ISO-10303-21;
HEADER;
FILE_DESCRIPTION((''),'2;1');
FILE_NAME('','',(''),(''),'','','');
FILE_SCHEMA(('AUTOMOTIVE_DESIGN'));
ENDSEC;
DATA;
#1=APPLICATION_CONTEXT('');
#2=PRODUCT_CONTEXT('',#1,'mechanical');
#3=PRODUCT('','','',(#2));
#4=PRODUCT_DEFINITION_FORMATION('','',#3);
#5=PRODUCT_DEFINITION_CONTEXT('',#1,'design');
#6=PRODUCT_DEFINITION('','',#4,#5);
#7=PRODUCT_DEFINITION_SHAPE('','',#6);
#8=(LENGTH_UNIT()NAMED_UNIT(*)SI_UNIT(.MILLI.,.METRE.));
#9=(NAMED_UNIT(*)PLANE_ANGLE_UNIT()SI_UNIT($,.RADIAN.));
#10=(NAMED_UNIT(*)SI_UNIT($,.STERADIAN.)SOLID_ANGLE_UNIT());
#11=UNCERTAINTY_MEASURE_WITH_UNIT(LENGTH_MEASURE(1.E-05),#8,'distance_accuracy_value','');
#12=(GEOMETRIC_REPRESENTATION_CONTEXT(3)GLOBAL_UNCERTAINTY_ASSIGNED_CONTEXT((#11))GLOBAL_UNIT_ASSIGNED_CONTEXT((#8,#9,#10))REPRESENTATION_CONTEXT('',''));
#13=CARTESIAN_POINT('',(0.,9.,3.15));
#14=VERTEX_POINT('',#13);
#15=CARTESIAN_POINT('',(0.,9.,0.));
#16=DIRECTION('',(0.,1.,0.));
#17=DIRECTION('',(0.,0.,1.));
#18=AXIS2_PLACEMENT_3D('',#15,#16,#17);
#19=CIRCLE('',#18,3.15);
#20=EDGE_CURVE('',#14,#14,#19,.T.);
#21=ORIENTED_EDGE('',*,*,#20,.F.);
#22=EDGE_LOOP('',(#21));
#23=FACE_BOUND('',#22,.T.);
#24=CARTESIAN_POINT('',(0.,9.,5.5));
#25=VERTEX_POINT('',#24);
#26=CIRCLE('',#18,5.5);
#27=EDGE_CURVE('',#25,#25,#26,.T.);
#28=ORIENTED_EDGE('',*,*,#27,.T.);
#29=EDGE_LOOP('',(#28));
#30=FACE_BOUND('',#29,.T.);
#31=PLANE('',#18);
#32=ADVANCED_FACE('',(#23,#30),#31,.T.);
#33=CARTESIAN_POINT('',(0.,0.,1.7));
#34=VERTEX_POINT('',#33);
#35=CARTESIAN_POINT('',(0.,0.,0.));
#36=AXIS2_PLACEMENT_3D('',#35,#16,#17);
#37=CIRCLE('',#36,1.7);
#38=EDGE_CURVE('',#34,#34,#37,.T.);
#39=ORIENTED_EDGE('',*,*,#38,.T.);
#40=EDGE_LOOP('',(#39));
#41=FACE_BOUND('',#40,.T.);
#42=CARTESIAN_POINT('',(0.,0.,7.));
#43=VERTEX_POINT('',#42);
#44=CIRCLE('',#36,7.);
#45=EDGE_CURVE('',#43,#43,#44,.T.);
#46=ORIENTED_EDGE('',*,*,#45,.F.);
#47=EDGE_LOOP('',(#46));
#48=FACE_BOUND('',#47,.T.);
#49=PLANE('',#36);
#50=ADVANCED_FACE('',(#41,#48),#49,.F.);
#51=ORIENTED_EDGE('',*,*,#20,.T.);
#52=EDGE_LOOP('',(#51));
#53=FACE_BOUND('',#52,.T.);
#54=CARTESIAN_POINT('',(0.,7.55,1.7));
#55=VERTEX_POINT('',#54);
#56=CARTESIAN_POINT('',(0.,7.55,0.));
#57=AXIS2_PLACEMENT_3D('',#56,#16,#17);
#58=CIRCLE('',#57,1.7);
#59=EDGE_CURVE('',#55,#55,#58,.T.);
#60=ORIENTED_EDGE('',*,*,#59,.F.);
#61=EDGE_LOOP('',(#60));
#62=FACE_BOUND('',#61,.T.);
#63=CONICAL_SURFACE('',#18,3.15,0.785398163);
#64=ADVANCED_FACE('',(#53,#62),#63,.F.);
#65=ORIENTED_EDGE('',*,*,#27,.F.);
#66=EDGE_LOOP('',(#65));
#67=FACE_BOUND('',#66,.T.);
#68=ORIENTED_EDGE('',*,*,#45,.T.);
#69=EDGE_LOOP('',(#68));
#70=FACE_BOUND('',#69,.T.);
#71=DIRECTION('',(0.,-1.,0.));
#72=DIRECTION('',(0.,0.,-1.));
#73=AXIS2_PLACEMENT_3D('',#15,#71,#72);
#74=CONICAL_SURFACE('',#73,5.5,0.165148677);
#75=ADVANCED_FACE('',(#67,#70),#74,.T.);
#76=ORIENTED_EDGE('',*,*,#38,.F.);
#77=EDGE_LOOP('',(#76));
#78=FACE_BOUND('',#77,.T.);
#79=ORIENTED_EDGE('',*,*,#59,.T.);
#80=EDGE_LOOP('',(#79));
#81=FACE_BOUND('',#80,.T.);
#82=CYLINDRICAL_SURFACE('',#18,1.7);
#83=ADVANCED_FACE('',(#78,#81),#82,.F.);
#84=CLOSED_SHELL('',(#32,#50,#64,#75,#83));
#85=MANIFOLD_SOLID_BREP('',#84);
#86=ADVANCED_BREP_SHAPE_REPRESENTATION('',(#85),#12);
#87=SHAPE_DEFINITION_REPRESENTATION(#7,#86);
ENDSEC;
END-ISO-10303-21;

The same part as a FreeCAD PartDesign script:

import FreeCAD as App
import Part
import Sketcher

V = App.Vector
Q = App.Units.Quantity

doc = App.newDocument("Part")
params = doc.addObject("Spreadsheet::Sheet", "Params")
for row, (alias, value) in enumerate([
    ("sketch1_diameter", "11 mm"),
    ("sketch2_diameter", "14 mm"),
    ("sketch3_diameter", "3.4 mm"),
    ("hole_diameter", "3.4 mm"),
    ("hole_csink_diameter", "6.3 mm"),
], start=1):
    params.set(f"A{row}", alias)
    params.set(f"B{row}", "=" + value)
    params.setAlias(f"B{row}", alias)

body = doc.addObject("PartDesign::Body", "Body")

sketch1 = doc.addObject("Sketcher::SketchObject", "Sketch")
body.addObject(sketch1)
sketch1.AttachmentSupport = (doc.XZ_Plane, [""])
sketch1.MapMode = "FlatFace"
sketch1.AttachmentOffset = App.Placement(V(0, 0, -9), App.Rotation())
sketch1.addGeometry(Part.Circle(V(0, 0, 0), V(0, 0, 1), 5.5), False)
sketch1.addConstraint(Sketcher.Constraint("Coincident", 0, 3, -1, 1))
sketch1.addConstraint(Sketcher.Constraint("Diameter", 0, Q("11 mm")))
sketch1.setExpression("Constraints[1]", "Params.sketch1_diameter")

sketch2 = doc.addObject("Sketcher::SketchObject", "Sketch001")
body.addObject(sketch2)
sketch2.AttachmentSupport = (doc.XZ_Plane, [""])
sketch2.MapMode = "FlatFace"
sketch2.addGeometry(Part.Circle(V(0, 0, 0), V(0, 0, 1), 7), False)
sketch2.addConstraint(Sketcher.Constraint("Coincident", 0, 3, -1, 1))
sketch2.addConstraint(Sketcher.Constraint("Diameter", 0, Q("14 mm")))
sketch2.setExpression("Constraints[1]", "Params.sketch2_diameter")

additiveloft = doc.addObject("PartDesign::AdditiveLoft", "AdditiveLoft")
body.addObject(additiveloft)
additiveloft.Profile = sketch1
additiveloft.Sections = [sketch2]

sketch3 = doc.addObject("Sketcher::SketchObject", "Sketch002")
body.addObject(sketch3)
sketch3.AttachmentSupport = (doc.XZ_Plane, [""])
sketch3.MapMode = "FlatFace"
sketch3.AttachmentOffset = App.Placement(V(0, 0, -9), App.Rotation())
sketch3.addGeometry(Part.Circle(V(0, 0, 0), V(0, 0, 1), 1.7), False)
sketch3.addConstraint(Sketcher.Constraint("Coincident", 0, 3, -1, 1))
sketch3.addConstraint(Sketcher.Constraint("Diameter", 0, Q("3.4 mm")))
sketch3.setExpression("Constraints[1]", "Params.sketch3_diameter")
doc.recompute()
hole = doc.addObject("PartDesign::Hole", "Hole")
body.addObject(hole)
hole.Profile = sketch3
hole.ThreadType = "None"
hole.setExpression("Diameter", "Params.hole_diameter")
hole.DepthType = "ThroughAll"
hole.HoleCutType = "Countersink"
hole.setExpression("HoleCutDiameter", "Params.hole_csink_diameter")
hole.HoleCutCountersinkAngle = 90
hole.Reversed = True

doc.recompute()
